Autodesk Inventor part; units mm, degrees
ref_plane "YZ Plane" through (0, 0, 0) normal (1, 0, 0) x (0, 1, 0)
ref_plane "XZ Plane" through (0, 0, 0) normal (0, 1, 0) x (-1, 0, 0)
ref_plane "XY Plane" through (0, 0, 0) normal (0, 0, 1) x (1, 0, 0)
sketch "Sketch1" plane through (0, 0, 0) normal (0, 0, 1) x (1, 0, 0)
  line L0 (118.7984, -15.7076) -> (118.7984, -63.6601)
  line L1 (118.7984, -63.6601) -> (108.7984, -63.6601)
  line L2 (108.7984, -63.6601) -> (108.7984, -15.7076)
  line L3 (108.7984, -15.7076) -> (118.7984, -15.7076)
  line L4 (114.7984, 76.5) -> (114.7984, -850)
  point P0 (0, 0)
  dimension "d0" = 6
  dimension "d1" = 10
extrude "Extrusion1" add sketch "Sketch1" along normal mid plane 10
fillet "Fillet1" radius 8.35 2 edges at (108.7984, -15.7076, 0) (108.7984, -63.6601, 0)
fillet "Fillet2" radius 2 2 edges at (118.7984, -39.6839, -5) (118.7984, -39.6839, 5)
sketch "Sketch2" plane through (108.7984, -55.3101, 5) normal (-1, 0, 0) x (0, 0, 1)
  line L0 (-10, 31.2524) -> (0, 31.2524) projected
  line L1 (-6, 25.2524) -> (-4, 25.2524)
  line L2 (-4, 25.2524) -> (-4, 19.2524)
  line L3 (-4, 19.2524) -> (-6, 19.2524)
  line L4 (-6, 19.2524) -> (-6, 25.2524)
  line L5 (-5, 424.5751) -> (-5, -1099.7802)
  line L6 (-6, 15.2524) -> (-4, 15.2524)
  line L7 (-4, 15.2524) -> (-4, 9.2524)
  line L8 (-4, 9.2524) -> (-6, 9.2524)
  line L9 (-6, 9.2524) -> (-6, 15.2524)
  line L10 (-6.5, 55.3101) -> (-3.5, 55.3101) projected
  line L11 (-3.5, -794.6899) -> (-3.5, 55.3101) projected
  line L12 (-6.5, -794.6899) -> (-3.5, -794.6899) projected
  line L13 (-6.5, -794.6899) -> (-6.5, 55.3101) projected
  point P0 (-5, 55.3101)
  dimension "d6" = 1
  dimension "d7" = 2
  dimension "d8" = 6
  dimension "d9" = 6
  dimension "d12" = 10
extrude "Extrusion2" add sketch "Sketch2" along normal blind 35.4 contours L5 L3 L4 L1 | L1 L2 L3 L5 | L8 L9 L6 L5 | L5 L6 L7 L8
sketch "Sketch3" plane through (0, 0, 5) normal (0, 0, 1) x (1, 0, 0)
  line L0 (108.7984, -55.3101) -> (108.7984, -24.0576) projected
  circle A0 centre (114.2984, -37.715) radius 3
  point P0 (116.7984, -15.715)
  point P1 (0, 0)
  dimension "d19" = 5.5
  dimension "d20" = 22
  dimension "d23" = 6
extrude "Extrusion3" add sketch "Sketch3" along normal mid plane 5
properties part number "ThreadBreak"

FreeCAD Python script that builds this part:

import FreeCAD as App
import Part
import Sketcher
from FreeCAD import Vector
Q = App.Units.Quantity


def edges_at(feature, points):
    """Names of the edges that pass closest to the given points."""
    edges = feature.Shape.Edges
    near = lambda p: min(range(len(edges)), key=lambda i: edges[i].distToShape(Part.Vertex(*p))[0])
    return sorted({f"Edge{near(p) + 1}" for p in points})

doc = App.newDocument("Part")
body = doc.addObject("PartDesign::Body", "Body")

# Sketch on XY plane
sketch1 = body.newObject("Sketcher::SketchObject", "Sketch")
sketch1.AttachmentSupport = (doc.getObject("XY_Plane"), [""])
sketch1.MapMode = "FlatFace"
sketch1.addGeometry([
    Part.LineSegment(Vector(119, -64, 0), Vector(119, -16, 0)),
    Part.LineSegment(Vector(119, -16, 0), Vector(109, -16, 0)),
    Part.LineSegment(Vector(109, -16, 0), Vector(109, -64, 0)),
    Part.LineSegment(Vector(109, -64, 0), Vector(119, -64, 0)),
], False)
sketch1.addConstraint([
    Sketcher.Constraint("Coincident", 0, 2, 1, 1),
    Sketcher.Constraint("Coincident", 1, 2, 2, 1),
    Sketcher.Constraint("Coincident", 2, 2, 3, 1),
    Sketcher.Constraint("Coincident", 3, 2, 0, 1),
    Sketcher.Constraint("Vertical", 0),
    Sketcher.Constraint("Horizontal", 1),
    Sketcher.Constraint("Vertical", 2),
    Sketcher.Constraint("Horizontal", 3),
    Sketcher.Constraint("DistanceX", 1, 2, 1, 1, Q("10 mm")),
    Sketcher.Constraint("DistanceY", 2, 2, -1, 1, Q("63.66 mm")),
    Sketcher.Constraint("DistanceY", 0, 1, 0, 2, Q("47.9525 mm")),
    Sketcher.Constraint("DistanceX", -1, 1, 0, 2, Q("118.7984 mm")),
])
pad1 = body.newObject("PartDesign::Pad", "Pad")
pad1.Profile = sketch1
pad1.Length = 10
pad1.Midplane = True
doc.recompute()

fillet = body.newObject("PartDesign::Fillet", "Fillet")
fillet.Base = (pad1, edges_at(pad1, [(108.798, -15.708, 0), (108.798, -63.66, 0)]))
fillet.Radius = 8.35
doc.recompute()

fillet2 = body.newObject("PartDesign::Fillet", "Fillet001")
fillet2.Base = (fillet, edges_at(fillet, [(118.798, -39.684, -5), (118.798, -39.684, 5)]))
fillet2.Radius = 2

# Sketch on YZ plane
sketch2 = body.newObject("Sketcher::SketchObject", "Sketch001")
sketch2.AttachmentSupport = (doc.getObject("YZ_Plane"), [""])
sketch2.MapMode = "FlatFace"
sketch2.AttachmentOffset = App.Placement(Vector(0, 0, 108.7984), App.Rotation())
sketch2.addGeometry([
    Part.LineSegment(Vector(-36.1, -1, 0), Vector(-36.1, 1, 0)),  # 0
    Part.LineSegment(Vector(-36.1, 1, 0), Vector(-30.1, 1, 0)),  # 1
    Part.LineSegment(Vector(-30.1, 1, 0), Vector(-30.1, -1, 0)),  # 2
    Part.LineSegment(Vector(-30.1, -1, 0), Vector(-36.1, -1, 0)),  # 3
    Part.LineSegment(Vector(-46.1, -1, 0), Vector(-46.1, 1, 0)),  # 4
    Part.LineSegment(Vector(-46.1, 1, 0), Vector(-40.1, 1, 0)),  # 5
    Part.LineSegment(Vector(-40.1, 1, 0), Vector(-40.1, -1, 0)),  # 6
    Part.LineSegment(Vector(-40.1, -1, 0), Vector(-46.1, -1, 0)),  # 7
], False)
sketch2.addConstraint([
    Sketcher.Constraint("Coincident", 0, 2, 1, 1),
    Sketcher.Constraint("Coincident", 1, 2, 2, 1),
    Sketcher.Constraint("Coincident", 2, 2, 3, 1),
    Sketcher.Constraint("Coincident", 3, 2, 0, 1),
    Sketcher.Constraint("Coincident", 4, 2, 5, 1),
    Sketcher.Constraint("Coincident", 5, 2, 6, 1),
    Sketcher.Constraint("Coincident", 6, 2, 7, 1),
    Sketcher.Constraint("Coincident", 7, 2, 4, 1),
    Sketcher.Constraint("Vertical", 0),
    Sketcher.Constraint("Horizontal", 1),
    Sketcher.Constraint("Vertical", 2),
    Sketcher.Constraint("Horizontal", 3),
    Sketcher.Constraint("Vertical", 4),
    Sketcher.Constraint("Horizontal", 5),
    Sketcher.Constraint("Vertical", 6),
    Sketcher.Constraint("Horizontal", 7),
    Sketcher.Constraint("Horizontal", 1, 2, 4, 2),
    Sketcher.Constraint("Horizontal", 3, 2, 6, 2),
    Sketcher.Constraint("Equal", 3, 5),
    Sketcher.Constraint("DistanceX", 1, 1, 1, 2, Q("6 mm")),
    Sketcher.Constraint("DistanceY", 0, 1, 0, 2, Q("2 mm")),
    Sketcher.Constraint("DistanceY", -1, 1, 0, 2, Q("1 mm")),
    Sketcher.Constraint("DistanceX", 4, 2, 0, 2, Q("10 mm")),
    Sketcher.Constraint("DistanceX", 0, 2, -1, 1, Q("36.0577 mm")),
])
pad2 = body.newObject("PartDesign::Pad", "Pad001")
pad2.Profile = sketch2
pad2.Length = 35.4
pad2.Reversed = True

# Sketch on XY plane
sketch3 = body.newObject("Sketcher::SketchObject", "Sketch002")
sketch3.AttachmentSupport = (doc.getObject("XY_Plane"), [""])
sketch3.MapMode = "FlatFace"
sketch3.AttachmentOffset = App.Placement(Vector(0, 0, 5), App.Rotation())
sketch3.addGeometry(Part.Circle(Vector(114.3, -37.7, 0), Vector(0, 0, 1), 3), False)
sketch3.addConstraint([
    Sketcher.Constraint("Diameter", 0, Q("6 mm")),
    Sketcher.Constraint("DistanceY", 0, 3, -1, 1, Q("37.715 mm")),
    Sketcher.Constraint("DistanceX", -1, 1, 0, 3, Q("114.2984 mm")),
])
pad3 = body.newObject("PartDesign::Pad", "Pad002")
pad3.Profile = sketch3
pad3.Length = 5
pad3.Midplane = True

doc.recompute()
